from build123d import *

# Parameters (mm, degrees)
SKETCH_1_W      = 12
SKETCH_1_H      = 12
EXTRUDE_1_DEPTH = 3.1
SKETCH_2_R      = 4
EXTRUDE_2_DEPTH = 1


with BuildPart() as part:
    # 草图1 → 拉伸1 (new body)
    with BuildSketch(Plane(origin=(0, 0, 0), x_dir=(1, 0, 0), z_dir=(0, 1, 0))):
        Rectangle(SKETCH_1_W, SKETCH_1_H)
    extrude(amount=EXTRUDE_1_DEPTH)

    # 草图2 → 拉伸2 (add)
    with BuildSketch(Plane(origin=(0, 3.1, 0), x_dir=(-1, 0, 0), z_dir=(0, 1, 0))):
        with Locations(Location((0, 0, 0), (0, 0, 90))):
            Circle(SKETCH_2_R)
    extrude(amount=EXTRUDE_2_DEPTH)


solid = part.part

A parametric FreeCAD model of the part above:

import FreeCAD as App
import Part
import Sketcher
from FreeCAD import Vector
Q = App.Units.Quantity


def add_polygon(sketch, points):
    """Adds a closed chain of lines whose ends are joined by coincident constraints."""
    first, n = sketch.GeometryCount, len(points)
    for a, b in zip(points, points[1:] + points[:1]):
        sketch.addGeometry(Part.LineSegment(App.Vector(*a, 0), App.Vector(*b, 0)), False)
    for i in range(n):
        sketch.addConstraint(Sketcher.Constraint("Coincident", first + i, 2, first + (i + 1) % n, 1))

doc = App.newDocument("Part")
body = doc.addObject("PartDesign::Body", "Body")

# Sketch on XZ plane
sketch1 = body.newObject("Sketcher::SketchObject", "Sketch")
sketch1.AttachmentSupport = (doc.getObject("XZ_Plane"), [""])
sketch1.MapMode = "FlatFace"
add_polygon(sketch1, [(-6, -6), (-6, 6), (6, 6), (6, -6)])  # lines 0-3
sketch1.addConstraint([
    Sketcher.Constraint("Vertical", 0),
    Sketcher.Constraint("Horizontal", 1),
    Sketcher.Constraint("Vertical", 2),
    Sketcher.Constraint("Horizontal", 3),
    Sketcher.Constraint("Symmetric", 0, 2, 2, 2, -1, 1),
    Sketcher.Constraint("Equal", 3, 0),
    Sketcher.Constraint("DistanceX", 1, 1, 1, 2, Q("12 mm")),
])
pad1 = body.newObject("PartDesign::Pad", "Pad")
pad1.Profile = sketch1
pad1.Length = 3.1
pad1.Reversed = True

# Sketch on XZ plane
sketch2 = body.newObject("Sketcher::SketchObject", "Sketch001")
sketch2.AttachmentSupport = (doc.getObject("XZ_Plane"), [""])
sketch2.MapMode = "FlatFace"
sketch2.AttachmentOffset = App.Placement(Vector(0, 0, -3.1), App.Rotation())
sketch2.addGeometry(Part.Circle(Vector(0, 0, 0), Vector(0, 0, 1), 4), False)
sketch2.addConstraint([
    Sketcher.Constraint("Coincident", 0, 3, -1, 1),
    Sketcher.Constraint("Diameter", 0, Q("8 mm")),
])
pad2 = body.newObject("PartDesign::Pad", "Pad001")
pad2.Profile = sketch2
pad2.Length = 1
pad2.Reversed = True

doc.recompute()
